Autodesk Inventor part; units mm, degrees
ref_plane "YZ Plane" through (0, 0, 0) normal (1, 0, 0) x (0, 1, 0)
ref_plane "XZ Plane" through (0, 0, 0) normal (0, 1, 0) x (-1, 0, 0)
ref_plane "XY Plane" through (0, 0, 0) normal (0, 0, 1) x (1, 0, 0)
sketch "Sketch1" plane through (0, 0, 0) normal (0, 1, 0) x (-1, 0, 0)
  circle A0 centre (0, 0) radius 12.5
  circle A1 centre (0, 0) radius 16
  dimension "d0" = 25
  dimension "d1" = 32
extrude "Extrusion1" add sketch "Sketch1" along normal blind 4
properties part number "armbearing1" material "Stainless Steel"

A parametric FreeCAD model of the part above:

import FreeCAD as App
import Part
import Sketcher

V = App.Vector

doc = App.newDocument("Part")
params = doc.addObject("Spreadsheet::Sheet", "Params")
for row, (alias, value) in enumerate([
    ("sketch1_diameter", "32 mm"),
    ("sketch1_diameter2", "25 mm"),
    ("pad1_length", "4 mm"),
], start=1):
    params.set(f"A{row}", alias)
    params.set(f"B{row}", "=" + value)
    params.setAlias(f"B{row}", alias)

body = doc.addObject("PartDesign::Body", "Body")

sketch1 = body.newObject("Sketcher::SketchObject", "Sketch")
sketch1.AttachmentSupport = (doc.getObject("XZ_Plane"), [""])
sketch1.MapMode = "FlatFace"
sketch1.addGeometry([
    Part.Circle(V(0, 0, 0), V(0, 0, 1), 16),
    Part.Circle(V(0, 0, 0), V(0, 0, 1), 12),
], False)
sketch1.addConstraint([
    Sketcher.Constraint("Coincident", 0, 3, -1, 1),
    Sketcher.Constraint("Coincident", 1, 3, -1, 1),
    Sketcher.Constraint("Diameter", 0, 32.0),
    Sketcher.Constraint("Diameter", 1, 25.0),
])
sketch1.setExpression("Constraints[2]", "Params.sketch1_diameter")
sketch1.setExpression("Constraints[3]", "Params.sketch1_diameter2")
pad1 = body.newObject("PartDesign::Pad", "Pad")
pad1.Profile = sketch1
pad1.setExpression("Length", "Params.pad1_length")
pad1.Reversed = True

doc.recompute()
